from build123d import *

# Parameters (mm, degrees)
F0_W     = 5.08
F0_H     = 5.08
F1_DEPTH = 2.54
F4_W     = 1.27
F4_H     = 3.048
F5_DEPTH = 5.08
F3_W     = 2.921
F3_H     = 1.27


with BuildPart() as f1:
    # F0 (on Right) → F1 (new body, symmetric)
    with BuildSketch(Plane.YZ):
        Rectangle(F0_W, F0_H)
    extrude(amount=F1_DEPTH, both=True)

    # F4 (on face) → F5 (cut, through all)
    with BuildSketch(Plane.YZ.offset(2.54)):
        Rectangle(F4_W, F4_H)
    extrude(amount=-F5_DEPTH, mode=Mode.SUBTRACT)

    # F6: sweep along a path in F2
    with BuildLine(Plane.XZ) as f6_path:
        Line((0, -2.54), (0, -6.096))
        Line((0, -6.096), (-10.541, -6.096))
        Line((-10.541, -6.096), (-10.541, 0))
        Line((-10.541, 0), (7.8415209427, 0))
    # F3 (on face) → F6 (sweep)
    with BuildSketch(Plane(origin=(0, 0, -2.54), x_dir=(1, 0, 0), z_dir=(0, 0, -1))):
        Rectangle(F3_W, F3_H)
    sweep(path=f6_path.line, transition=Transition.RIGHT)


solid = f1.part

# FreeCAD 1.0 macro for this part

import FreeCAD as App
import Part
import Sketcher
Q = App.Units.Quantity


def add_polygon(sketch, points):
    """Adds a closed chain of lines whose ends are joined by coincident constraints."""
    first, n = sketch.GeometryCount, len(points)
    for a, b in zip(points, points[1:] + points[:1]):
        sketch.addGeometry(Part.LineSegment(App.Vector(*a, 0), App.Vector(*b, 0)), False)
    for i in range(n):
        sketch.addConstraint(Sketcher.Constraint("Coincident", first + i, 2, first + (i + 1) % n, 1))

doc = App.newDocument("Part")
body = doc.addObject("PartDesign::Body", "Body")

sketch1 = body.newObject("Sketcher::SketchObject", "Sketch")
sketch1.AttachmentSupport = (doc.getObject("YZ_Plane"), [""])
sketch1.MapMode = "FlatFace"
add_polygon(sketch1, [(-3, 3), (-3, -3), (3, -3), (3, 3)])
sketch1.addConstraint([
    Sketcher.Constraint("Vertical", 0),
    Sketcher.Constraint("Horizontal", 1),
    Sketcher.Constraint("Vertical", 2),
    Sketcher.Constraint("Horizontal", 3),
    Sketcher.Constraint("Symmetric", 0, 2, 2, 2, -1, 1),
    Sketcher.Constraint("Equal", 3, 0),
    Sketcher.Constraint("DistanceX", 1, 1, 1, 2, Q("0.2 in")),
])
pad1 = body.newObject("PartDesign::Pad", "Pad")
pad1.Profile = sketch1
pad1.Length = Q("0.2 in")
pad1.Midplane = True

sketch2 = body.newObject("Sketcher::SketchObject", "Sketch001")
sketch2.AttachmentSupport = (doc.getObject("YZ_Plane"), [""])
sketch2.MapMode = "FlatFace"
sketch2.AttachmentOffset = App.Placement(App.Vector(0, 0, 0.1 * 25.4), App.Rotation())
add_polygon(sketch2, [(-0.6, 1.5), (-0.6, -1.5), (0.6, -1.5), (0.6, 1.5)])
sketch2.addConstraint([
    Sketcher.Constraint("Vertical", 0),
    Sketcher.Constraint("Horizontal", 1),
    Sketcher.Constraint("Vertical", 2),
    Sketcher.Constraint("Horizontal", 3),
    Sketcher.Constraint("Symmetric", 0, 2, 2, 2, -1, 1),
    Sketcher.Constraint("DistanceX", 1, 1, 1, 2, Q("0.05 in")),
    Sketcher.Constraint("DistanceY", 0, 2, 0, 1, Q("0.12 in")),
])
pocket1 = body.newObject("PartDesign::Pocket", "Pocket")
pocket1.Profile = sketch2
pocket1.Type = "ThroughAll"

sketch3 = body.newObject("Sketcher::SketchObject", "Sketch002")
sketch3.AttachmentSupport = (doc.getObject("XY_Plane"), [""])
sketch3.MapMode = "FlatFace"
sketch3.AttachmentOffset = App.Placement(App.Vector(0, 0, -0.1 * 25.4), App.Rotation())
add_polygon(sketch3, [(-1.5, -0.6), (-1.5, 0.6), (1.5, 0.6), (1.5, -0.6)])
sketch3.addConstraint([
    Sketcher.Constraint("Vertical", 0),
    Sketcher.Constraint("Horizontal", 1),
    Sketcher.Constraint("Vertical", 2),
    Sketcher.Constraint("Horizontal", 3),
    Sketcher.Constraint("Symmetric", 0, 2, 2, 2, -1, 1),
    Sketcher.Constraint("DistanceY", 0, 1, 0, 2, Q("0.05 in")),
    Sketcher.Constraint("DistanceX", 1, 1, 1, 2, Q("0.115 in")),
])

sketch4 = body.newObject("Sketcher::SketchObject", "Sketch003")
sketch4.AttachmentSupport = (doc.getObject("XZ_Plane"), [""])
sketch4.MapMode = "FlatFace"
sketch4.addGeometry([
    Part.LineSegment(App.Vector(0, -2.5, 0), App.Vector(0, -6.1, 0)),
    Part.LineSegment(App.Vector(0, -6.1, 0), App.Vector(-10.5, -6.1, 0)),
    Part.LineSegment(App.Vector(-10.5, -6.1, 0), App.Vector(-10.5, 0, 0)),
    Part.LineSegment(App.Vector(-10.5, 0, 0), App.Vector(7.8, 0, 0)),
], False)
sketch4.addConstraint([
    Sketcher.Constraint("Coincident", 0, 2, 1, 1),
    Sketcher.Constraint("Coincident", 1, 2, 2, 1),
    Sketcher.Constraint("Coincident", 2, 2, 3, 1),
    Sketcher.Constraint("Vertical", 0),
    Sketcher.Constraint("Horizontal", 1),
    Sketcher.Constraint("Vertical", 2),
    Sketcher.Constraint("Horizontal", 3),
    Sketcher.Constraint("PointOnObject", 0, 1, -2),
    Sketcher.Constraint("PointOnObject", 2, 2, -1),
    Sketcher.Constraint("DistanceY", 0, 2, 0, 1, Q("0.14 in")),
    Sketcher.Constraint("DistanceY", 2, 1, 2, 2, Q("0.24 in")),
    Sketcher.Constraint("DistanceX", 1, 2, 1, 1, Q("0.415 in")),
    Sketcher.Constraint("DistanceX", 3, 1, 3, 2, 18.382521),
])
doc.recompute()

additivepipe = body.newObject("PartDesign::AdditivePipe", "AdditivePipe")
additivepipe.Profile = sketch3
additivepipe.Spine = (sketch4, ["Edge1", "Edge2", "Edge3", "Edge4"])
additivepipe.Transition = "Right corner"

doc.recompute()
